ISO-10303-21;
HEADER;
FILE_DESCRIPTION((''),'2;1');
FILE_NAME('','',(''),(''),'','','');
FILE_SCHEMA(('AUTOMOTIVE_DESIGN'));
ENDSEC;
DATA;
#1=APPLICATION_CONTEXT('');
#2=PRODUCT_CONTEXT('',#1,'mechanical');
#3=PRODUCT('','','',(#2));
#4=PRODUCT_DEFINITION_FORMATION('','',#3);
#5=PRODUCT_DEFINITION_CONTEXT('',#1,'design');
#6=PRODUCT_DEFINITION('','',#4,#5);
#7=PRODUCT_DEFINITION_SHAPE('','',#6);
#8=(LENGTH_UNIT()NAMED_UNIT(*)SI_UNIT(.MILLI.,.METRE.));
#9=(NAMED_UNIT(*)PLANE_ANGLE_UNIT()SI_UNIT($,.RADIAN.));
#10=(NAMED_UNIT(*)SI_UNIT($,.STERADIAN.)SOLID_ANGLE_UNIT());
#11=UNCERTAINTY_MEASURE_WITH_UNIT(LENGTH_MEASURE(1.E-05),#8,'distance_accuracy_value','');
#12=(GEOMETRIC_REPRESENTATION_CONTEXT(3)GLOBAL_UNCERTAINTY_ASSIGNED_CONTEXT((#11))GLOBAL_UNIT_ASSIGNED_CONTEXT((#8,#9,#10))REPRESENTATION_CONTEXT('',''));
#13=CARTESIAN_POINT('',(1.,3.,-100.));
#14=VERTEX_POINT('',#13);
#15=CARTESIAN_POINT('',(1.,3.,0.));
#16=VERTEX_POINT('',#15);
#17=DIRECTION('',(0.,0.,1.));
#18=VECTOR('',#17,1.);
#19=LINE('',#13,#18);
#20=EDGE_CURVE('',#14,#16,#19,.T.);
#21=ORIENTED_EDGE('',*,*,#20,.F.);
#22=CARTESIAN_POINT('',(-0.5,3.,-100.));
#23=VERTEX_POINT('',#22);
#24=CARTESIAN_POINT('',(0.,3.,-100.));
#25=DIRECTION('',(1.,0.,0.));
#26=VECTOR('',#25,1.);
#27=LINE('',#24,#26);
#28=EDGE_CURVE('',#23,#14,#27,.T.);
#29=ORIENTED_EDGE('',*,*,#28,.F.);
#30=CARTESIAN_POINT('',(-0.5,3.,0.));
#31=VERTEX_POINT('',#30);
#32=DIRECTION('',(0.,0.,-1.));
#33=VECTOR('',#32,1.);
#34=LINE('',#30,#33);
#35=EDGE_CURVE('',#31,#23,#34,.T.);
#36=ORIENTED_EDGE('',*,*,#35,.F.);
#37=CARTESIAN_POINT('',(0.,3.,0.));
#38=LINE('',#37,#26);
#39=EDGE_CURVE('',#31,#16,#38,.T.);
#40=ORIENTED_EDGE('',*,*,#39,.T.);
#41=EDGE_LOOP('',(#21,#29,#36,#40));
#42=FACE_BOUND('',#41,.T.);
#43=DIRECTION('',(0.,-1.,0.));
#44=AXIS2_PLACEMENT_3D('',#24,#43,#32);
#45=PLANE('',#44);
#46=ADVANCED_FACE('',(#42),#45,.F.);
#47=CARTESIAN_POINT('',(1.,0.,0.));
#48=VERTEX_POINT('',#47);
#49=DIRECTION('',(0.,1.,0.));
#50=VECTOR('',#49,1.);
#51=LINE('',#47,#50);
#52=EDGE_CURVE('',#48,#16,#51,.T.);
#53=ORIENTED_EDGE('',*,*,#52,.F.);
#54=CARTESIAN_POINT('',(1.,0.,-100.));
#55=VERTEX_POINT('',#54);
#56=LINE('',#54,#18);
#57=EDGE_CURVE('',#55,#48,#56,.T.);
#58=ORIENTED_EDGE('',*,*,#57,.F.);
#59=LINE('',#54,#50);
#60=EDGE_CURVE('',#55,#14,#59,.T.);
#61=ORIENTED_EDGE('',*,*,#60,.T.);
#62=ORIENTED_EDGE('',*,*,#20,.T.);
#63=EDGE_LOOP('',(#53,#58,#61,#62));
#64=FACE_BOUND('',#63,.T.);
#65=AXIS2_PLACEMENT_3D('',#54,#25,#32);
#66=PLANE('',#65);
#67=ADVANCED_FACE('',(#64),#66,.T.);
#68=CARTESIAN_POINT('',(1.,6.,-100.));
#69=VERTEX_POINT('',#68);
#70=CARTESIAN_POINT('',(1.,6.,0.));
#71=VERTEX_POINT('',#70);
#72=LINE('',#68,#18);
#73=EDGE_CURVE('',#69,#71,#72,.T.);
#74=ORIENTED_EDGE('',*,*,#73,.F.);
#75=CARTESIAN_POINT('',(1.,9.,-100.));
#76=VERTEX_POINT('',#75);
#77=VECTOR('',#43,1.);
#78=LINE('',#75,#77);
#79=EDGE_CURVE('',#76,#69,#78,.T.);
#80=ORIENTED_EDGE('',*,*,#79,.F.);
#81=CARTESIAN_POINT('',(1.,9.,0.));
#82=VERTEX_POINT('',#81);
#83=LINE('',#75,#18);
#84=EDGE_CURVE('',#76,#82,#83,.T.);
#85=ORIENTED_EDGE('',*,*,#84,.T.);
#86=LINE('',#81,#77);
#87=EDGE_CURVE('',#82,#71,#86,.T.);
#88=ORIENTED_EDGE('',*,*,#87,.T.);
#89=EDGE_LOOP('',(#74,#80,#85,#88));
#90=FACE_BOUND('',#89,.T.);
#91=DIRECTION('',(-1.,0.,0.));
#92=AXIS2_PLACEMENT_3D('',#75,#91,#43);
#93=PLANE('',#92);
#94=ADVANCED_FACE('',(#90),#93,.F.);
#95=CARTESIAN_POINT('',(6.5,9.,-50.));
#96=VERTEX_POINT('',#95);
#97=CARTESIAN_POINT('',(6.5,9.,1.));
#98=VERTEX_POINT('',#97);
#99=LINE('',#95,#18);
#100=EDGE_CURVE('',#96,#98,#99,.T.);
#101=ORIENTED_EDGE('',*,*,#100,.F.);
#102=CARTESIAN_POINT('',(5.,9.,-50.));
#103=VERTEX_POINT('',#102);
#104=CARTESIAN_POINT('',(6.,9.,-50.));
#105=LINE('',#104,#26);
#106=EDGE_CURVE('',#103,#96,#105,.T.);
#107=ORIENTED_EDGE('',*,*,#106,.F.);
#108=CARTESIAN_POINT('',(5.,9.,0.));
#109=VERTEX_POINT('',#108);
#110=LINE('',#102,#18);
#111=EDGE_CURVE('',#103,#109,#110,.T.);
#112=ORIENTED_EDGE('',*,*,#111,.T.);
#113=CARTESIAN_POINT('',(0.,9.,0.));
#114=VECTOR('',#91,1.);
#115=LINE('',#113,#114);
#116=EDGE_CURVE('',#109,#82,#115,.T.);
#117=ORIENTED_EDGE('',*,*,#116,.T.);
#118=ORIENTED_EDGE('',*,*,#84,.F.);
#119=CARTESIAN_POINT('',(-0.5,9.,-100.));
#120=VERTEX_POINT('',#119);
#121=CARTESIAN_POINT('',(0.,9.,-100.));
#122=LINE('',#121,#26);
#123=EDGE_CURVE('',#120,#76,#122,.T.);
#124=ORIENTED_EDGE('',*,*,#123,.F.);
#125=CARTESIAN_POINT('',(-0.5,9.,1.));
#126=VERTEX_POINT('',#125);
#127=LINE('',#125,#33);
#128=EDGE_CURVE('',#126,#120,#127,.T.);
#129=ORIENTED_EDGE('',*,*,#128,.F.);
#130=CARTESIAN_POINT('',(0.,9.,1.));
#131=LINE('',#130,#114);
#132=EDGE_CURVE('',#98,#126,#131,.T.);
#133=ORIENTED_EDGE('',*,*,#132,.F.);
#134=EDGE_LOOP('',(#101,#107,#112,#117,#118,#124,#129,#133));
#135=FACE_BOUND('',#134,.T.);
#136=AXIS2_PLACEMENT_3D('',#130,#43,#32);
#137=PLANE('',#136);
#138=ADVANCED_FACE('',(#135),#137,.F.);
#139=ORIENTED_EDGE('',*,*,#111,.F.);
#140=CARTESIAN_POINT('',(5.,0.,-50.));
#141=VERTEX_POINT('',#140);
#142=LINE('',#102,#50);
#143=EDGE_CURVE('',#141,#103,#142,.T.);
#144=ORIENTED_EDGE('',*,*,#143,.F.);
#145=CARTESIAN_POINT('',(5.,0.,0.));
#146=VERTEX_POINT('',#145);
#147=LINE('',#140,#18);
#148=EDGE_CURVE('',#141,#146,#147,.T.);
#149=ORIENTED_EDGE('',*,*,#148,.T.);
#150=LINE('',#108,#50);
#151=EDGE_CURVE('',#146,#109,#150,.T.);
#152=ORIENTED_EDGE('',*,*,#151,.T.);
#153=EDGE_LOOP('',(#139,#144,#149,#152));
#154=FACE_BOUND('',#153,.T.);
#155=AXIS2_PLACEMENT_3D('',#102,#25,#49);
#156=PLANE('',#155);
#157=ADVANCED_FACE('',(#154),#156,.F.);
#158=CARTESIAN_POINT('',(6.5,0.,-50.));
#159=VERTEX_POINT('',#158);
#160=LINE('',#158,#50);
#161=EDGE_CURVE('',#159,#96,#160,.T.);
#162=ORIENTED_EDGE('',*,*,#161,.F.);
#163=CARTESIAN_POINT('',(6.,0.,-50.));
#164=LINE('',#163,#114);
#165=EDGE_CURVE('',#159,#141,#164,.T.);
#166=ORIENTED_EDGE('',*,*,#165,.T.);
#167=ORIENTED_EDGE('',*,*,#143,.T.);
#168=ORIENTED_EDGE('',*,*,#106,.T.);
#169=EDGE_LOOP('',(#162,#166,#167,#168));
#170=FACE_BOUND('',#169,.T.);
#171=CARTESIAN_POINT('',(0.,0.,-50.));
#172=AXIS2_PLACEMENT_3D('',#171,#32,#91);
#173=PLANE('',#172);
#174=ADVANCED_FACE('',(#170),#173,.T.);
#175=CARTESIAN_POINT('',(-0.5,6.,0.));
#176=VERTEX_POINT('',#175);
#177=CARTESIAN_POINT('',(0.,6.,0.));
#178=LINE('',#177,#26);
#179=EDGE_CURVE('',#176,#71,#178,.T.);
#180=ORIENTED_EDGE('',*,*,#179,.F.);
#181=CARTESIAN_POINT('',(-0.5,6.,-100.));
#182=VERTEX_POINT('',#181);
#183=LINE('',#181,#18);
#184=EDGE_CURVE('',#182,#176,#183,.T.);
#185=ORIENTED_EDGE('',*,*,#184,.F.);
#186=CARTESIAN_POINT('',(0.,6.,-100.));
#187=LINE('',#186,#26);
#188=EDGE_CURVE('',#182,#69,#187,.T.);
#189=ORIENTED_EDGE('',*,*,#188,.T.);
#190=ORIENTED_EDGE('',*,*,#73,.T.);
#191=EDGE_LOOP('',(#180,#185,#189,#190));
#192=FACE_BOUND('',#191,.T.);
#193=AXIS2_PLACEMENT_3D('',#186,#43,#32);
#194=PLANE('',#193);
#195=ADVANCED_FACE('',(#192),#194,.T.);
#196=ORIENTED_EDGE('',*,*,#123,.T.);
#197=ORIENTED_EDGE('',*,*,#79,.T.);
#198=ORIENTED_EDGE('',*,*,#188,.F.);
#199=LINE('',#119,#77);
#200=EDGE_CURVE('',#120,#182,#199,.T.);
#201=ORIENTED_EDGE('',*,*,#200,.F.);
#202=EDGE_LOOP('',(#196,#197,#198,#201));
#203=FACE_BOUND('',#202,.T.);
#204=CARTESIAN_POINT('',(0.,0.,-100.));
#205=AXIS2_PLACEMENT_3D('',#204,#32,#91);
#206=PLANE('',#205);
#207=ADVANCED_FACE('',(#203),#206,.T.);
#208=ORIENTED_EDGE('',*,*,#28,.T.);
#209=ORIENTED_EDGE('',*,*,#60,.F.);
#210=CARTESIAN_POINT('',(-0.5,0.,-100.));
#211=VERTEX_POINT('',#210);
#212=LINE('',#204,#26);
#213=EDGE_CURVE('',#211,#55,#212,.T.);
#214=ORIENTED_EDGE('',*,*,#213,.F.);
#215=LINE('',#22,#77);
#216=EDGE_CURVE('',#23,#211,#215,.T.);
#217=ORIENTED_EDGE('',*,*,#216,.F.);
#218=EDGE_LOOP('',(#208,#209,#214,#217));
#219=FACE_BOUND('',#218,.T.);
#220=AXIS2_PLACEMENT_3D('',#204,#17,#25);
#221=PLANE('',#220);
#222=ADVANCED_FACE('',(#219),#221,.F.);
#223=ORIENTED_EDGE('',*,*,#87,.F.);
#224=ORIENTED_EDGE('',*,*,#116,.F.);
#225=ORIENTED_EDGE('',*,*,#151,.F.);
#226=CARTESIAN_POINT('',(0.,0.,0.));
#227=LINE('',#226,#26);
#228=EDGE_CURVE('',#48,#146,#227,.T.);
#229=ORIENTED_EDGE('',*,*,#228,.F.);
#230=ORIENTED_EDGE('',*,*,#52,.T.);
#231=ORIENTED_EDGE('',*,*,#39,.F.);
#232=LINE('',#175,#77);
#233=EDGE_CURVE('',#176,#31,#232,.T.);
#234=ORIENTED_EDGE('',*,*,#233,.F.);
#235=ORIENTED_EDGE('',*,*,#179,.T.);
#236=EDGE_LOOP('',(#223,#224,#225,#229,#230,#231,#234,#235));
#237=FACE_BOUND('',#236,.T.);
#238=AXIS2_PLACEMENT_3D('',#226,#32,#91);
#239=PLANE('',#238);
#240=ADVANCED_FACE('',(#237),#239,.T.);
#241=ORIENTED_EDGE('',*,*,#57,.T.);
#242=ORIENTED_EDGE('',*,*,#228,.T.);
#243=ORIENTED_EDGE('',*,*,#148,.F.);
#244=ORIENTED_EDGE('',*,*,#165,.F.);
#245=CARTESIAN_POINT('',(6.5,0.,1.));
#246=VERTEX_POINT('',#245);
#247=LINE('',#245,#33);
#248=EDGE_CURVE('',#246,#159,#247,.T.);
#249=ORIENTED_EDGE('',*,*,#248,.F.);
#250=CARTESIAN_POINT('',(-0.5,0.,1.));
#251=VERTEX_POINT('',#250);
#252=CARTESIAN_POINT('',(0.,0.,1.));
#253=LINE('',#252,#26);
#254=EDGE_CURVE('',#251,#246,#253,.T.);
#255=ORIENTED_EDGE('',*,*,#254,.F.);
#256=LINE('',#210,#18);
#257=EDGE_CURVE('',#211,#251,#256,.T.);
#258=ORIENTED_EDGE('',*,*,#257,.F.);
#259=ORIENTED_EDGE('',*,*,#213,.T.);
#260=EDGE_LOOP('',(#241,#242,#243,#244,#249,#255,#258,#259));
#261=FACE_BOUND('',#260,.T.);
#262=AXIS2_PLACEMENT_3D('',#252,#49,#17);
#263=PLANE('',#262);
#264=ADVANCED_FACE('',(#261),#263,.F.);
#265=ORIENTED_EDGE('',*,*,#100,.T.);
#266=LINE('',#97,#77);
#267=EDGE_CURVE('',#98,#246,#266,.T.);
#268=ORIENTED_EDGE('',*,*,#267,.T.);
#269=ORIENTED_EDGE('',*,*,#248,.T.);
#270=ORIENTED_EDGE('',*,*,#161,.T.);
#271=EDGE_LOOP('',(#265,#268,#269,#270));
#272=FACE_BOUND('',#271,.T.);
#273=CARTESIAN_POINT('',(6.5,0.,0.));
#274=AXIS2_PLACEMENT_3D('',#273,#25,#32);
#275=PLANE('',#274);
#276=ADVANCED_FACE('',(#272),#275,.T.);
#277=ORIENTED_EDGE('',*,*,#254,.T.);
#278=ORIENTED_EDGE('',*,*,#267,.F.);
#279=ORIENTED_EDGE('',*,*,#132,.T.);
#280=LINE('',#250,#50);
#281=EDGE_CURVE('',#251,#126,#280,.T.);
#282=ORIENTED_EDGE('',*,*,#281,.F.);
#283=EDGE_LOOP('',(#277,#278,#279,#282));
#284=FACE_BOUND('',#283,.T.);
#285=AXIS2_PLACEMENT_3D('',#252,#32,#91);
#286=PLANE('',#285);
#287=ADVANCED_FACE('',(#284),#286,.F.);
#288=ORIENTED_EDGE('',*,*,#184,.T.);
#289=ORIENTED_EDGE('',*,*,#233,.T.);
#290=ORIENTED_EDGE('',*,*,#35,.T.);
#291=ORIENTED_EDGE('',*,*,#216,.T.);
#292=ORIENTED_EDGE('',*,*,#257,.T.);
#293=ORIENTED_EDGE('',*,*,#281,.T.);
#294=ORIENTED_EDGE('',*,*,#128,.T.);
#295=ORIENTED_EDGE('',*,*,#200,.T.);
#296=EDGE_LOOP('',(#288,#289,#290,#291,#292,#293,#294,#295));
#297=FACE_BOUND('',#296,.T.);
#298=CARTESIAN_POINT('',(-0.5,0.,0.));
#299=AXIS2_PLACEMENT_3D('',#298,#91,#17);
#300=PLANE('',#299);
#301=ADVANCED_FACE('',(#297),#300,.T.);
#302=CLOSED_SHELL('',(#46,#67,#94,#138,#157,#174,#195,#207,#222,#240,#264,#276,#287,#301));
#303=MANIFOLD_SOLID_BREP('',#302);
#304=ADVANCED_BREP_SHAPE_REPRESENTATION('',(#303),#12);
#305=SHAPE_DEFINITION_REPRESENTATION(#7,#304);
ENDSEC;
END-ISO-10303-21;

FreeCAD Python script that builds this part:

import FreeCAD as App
import Part
import Sketcher
from FreeCAD import Vector
Q = App.Units.Quantity

doc = App.newDocument("Part")
params = doc.addObject("Spreadsheet::Sheet", "Params")
for row, (alias, value) in enumerate([
    ("sketch1_width", "6 mm"),
    ("sketch1_height", "9 mm"),
    ("pad1_length", "1 mm"),
    ("sketch2_width", "1 mm"),
    ("sketch2_height", "3 mm"),
    ("pad2_length", "100 mm"),
    ("sketch3_width", "1 mm"),
    ("sketch3_height", "9 mm"),
    ("pad3_length", "50 mm"),
    ("sketch4_width", "9 mm"),
    ("sketch4_height", "51 mm"),
    ("pad4_length", "0.5 mm"),
    ("sketch5_width", "3 mm"),
    ("sketch5_height", "101 mm"),
    ("sketch5_height2", "100 mm"),
    ("pad5_length", "0.5 mm"),
], start=1):
    params.set(f"A{row}", alias)
    params.set(f"B{row}", "=" + value)
    params.setAlias(f"B{row}", alias)

body = doc.addObject("PartDesign::Body", "Body")

sketch1 = doc.addObject("Sketcher::SketchObject", "Sketch")
body.addObject(sketch1)
sketch1.AttachmentSupport = (doc.XY_Plane, [""])
sketch1.MapMode = "FlatFace"
sketch1.addGeometry([
    Part.LineSegment(Vector(0, 9, 0), Vector(0, 0, 0)),
    Part.LineSegment(Vector(0, 0, 0), Vector(6, 0, 0)),
    Part.LineSegment(Vector(6, 0, 0), Vector(6, 9, 0)),
    Part.LineSegment(Vector(6, 9, 0), Vector(0, 9, 0)),
], False)
sketch1.addConstraint([
    Sketcher.Constraint("Coincident", 0, 2, 1, 1),
    Sketcher.Constraint("Coincident", 1, 2, 2, 1),
    Sketcher.Constraint("Coincident", 2, 2, 3, 1),
    Sketcher.Constraint("Coincident", 3, 2, 0, 1),
    Sketcher.Constraint("Vertical", 0),
    Sketcher.Constraint("Horizontal", 1),
    Sketcher.Constraint("Vertical", 2),
    Sketcher.Constraint("Horizontal", 3),
    Sketcher.Constraint("Coincident", 0, 2, -1, 1),
    Sketcher.Constraint("DistanceX", 1, 1, 1, 2, Q("6 mm")),
    Sketcher.Constraint("DistanceY", 0, 2, 0, 1, Q("9 mm")),
])
sketch1.setExpression("Constraints[9]", "Params.sketch1_width")
sketch1.setExpression("Constraints[10]", "Params.sketch1_height")
pad1 = doc.addObject("PartDesign::Pad", "Pad")
body.addObject(pad1)
pad1.Profile = sketch1
pad1.setExpression("Length", "Params.pad1_length")

sketch2 = doc.addObject("Sketcher::SketchObject", "Sketch001")
body.addObject(sketch2)
sketch2.AttachmentSupport = (doc.XY_Plane, [""])
sketch2.MapMode = "FlatFace"
sketch2.addGeometry([
    Part.LineSegment(Vector(1, 3, 0), Vector(1, 0, 0)),
    Part.LineSegment(Vector(1, 0, 0), Vector(0, 0, 0)),
    Part.LineSegment(Vector(0, 0, 0), Vector(0, 3, 0)),
    Part.LineSegment(Vector(0, 3, 0), Vector(1, 3, 0)),
    Part.LineSegment(Vector(1, 9, 0), Vector(1, 6, 0)),
    Part.LineSegment(Vector(1, 6, 0), Vector(0, 6, 0)),
    Part.LineSegment(Vector(0, 6, 0), Vector(0, 9, 0)),
    Part.LineSegment(Vector(0, 9, 0), Vector(1, 9, 0)),
], False)
sketch2.addConstraint([
    Sketcher.Constraint("Coincident", 0, 2, 1, 1),
    Sketcher.Constraint("Coincident", 1, 2, 2, 1),
    Sketcher.Constraint("Coincident", 2, 2, 3, 1),
    Sketcher.Constraint("Coincident", 3, 2, 0, 1),
    Sketcher.Constraint("Coincident", 4, 2, 5, 1),
    Sketcher.Constraint("Coincident", 5, 2, 6, 1),
    Sketcher.Constraint("Coincident", 6, 2, 7, 1),
    Sketcher.Constraint("Coincident", 7, 2, 4, 1),
    Sketcher.Constraint("Vertical", 0),
    Sketcher.Constraint("Horizontal", 1),
    Sketcher.Constraint("Vertical", 2),
    Sketcher.Constraint("Horizontal", 3),
    Sketcher.Constraint("Vertical", 4),
    Sketcher.Constraint("Horizontal", 5),
    Sketcher.Constraint("Vertical", 6),
    Sketcher.Constraint("Horizontal", 7),
    Sketcher.Constraint("Coincident", 1, 2, -1, 1),
    Sketcher.Constraint("PointOnObject", 5, 2, -2),
    Sketcher.Constraint("Vertical", 3, 2, 4, 2),
    Sketcher.Constraint("Equal", 2, 4),
    Sketcher.Constraint("DistanceX", 1, 2, 1, 1, Q("1 mm")),
    Sketcher.Constraint("DistanceY", 0, 2, 0, 1, Q("3 mm")),
    Sketcher.Constraint("DistanceY", -1, 1, 4, 2, Q("6 mm")),
])
sketch2.setExpression("Constraints[20]", "Params.sketch2_width")
sketch2.setExpression("Constraints[21]", "Params.sketch2_height")
pad2 = doc.addObject("PartDesign::Pad", "Pad001")
body.addObject(pad2)
pad2.Profile = sketch2
pad2.setExpression("Length", "Params.pad2_length")
pad2.Reversed = True

sketch3 = doc.addObject("Sketcher::SketchObject", "Sketch002")
body.addObject(sketch3)
sketch3.AttachmentSupport = (doc.XY_Plane, [""])
sketch3.MapMode = "FlatFace"
sketch3.addGeometry([
    Part.LineSegment(Vector(6, 9, 0), Vector(6, 0, 0)),
    Part.LineSegment(Vector(6, 0, 0), Vector(5, 0, 0)),
    Part.LineSegment(Vector(5, 0, 0), Vector(5, 9, 0)),
    Part.LineSegment(Vector(5, 9, 0), Vector(6, 9, 0)),
], False)
sketch3.addConstraint([
    Sketcher.Constraint("Coincident", 0, 2, 1, 1),
    Sketcher.Constraint("Coincident", 1, 2, 2, 1),
    Sketcher.Constraint("Coincident", 2, 2, 3, 1),
    Sketcher.Constraint("Coincident", 3, 2, 0, 1),
    Sketcher.Constraint("Vertical", 0),
    Sketcher.Constraint("Horizontal", 1),
    Sketcher.Constraint("Vertical", 2),
    Sketcher.Constraint("Horizontal", 3),
    Sketcher.Constraint("PointOnObject", 0, 2, -1),
    Sketcher.Constraint("DistanceX", 1, 2, 1, 1, Q("1 mm")),
    Sketcher.Constraint("DistanceY", 0, 2, 0, 1, Q("9 mm")),
    Sketcher.Constraint("DistanceX", -1, 1, 0, 2, Q("6 mm")),
])
sketch3.setExpression("Constraints[9]", "Params.sketch3_width")
sketch3.setExpression("Constraints[10]", "Params.sketch3_height")
pad3 = doc.addObject("PartDesign::Pad", "Pad002")
body.addObject(pad3)
pad3.Profile = sketch3
pad3.setExpression("Length", "Params.pad3_length")
pad3.Reversed = True

sketch4 = doc.addObject("Sketcher::SketchObject", "Sketch003")
body.addObject(sketch4)
sketch4.AttachmentSupport = (doc.YZ_Plane, [""])
sketch4.MapMode = "FlatFace"
sketch4.AttachmentOffset = App.Placement(Vector(0, 0, 6), App.Rotation())
sketch4.addGeometry([
    Part.LineSegment(Vector(9, 1, 0), Vector(0, 1, 0)),
    Part.LineSegment(Vector(0, 1, 0), Vector(0, -50, 0)),
    Part.LineSegment(Vector(0, -50, 0), Vector(9, -50, 0)),
    Part.LineSegment(Vector(9, -50, 0), Vector(9, 1, 0)),
], False)
sketch4.addConstraint([
    Sketcher.Constraint("Coincident", 0, 2, 1, 1),
    Sketcher.Constraint("Coincident", 1, 2, 2, 1),
    Sketcher.Constraint("Coincident", 2, 2, 3, 1),
    Sketcher.Constraint("Coincident", 3, 2, 0, 1),
    Sketcher.Constraint("Horizontal", 0),
    Sketcher.Constraint("Vertical", 1),
    Sketcher.Constraint("Horizontal", 2),
    Sketcher.Constraint("Vertical", 3),
    Sketcher.Constraint("PointOnObject", 0, 2, -2),
    Sketcher.Constraint("DistanceX", 0, 2, 0, 1, Q("9 mm")),
    Sketcher.Constraint("DistanceY", 1, 2, 1, 1, Q("51 mm")),
    Sketcher.Constraint("DistanceY", -1, 1, 0, 2, Q("1 mm")),
])
sketch4.setExpression("Constraints[9]", "Params.sketch4_width")
sketch4.setExpression("Constraints[10]", "Params.sketch4_height")
pad4 = doc.addObject("PartDesign::Pad", "Pad003")
body.addObject(pad4)
pad4.Profile = sketch4
pad4.setExpression("Length", "Params.pad4_length")

sketch5 = doc.addObject("Sketcher::SketchObject", "Sketch004")
body.addObject(sketch5)
sketch5.AttachmentSupport = (doc.YZ_Plane, [""])
sketch5.MapMode = "FlatFace"
sketch5.addGeometry([
    Part.LineSegment(Vector(9, 1, 0), Vector(9, -100, 0)),
    Part.LineSegment(Vector(9, -100, 0), Vector(6, -100, 0)),
    Part.LineSegment(Vector(6, -100, 0), Vector(6, 0, 0)),
    Part.LineSegment(Vector(6, 0, 0), Vector(3, 0, 0)),
    Part.LineSegment(Vector(3, 0, 0), Vector(3, -100, 0)),
    Part.LineSegment(Vector(3, -100, 0), Vector(0, -100, 0)),
    Part.LineSegment(Vector(0, -100, 0), Vector(0, 1, 0)),
    Part.LineSegment(Vector(0, 1, 0), Vector(9, 1, 0)),
], False)
sketch5.addConstraint([
    Sketcher.Constraint("Coincident", 0, 2, 1, 1),
    Sketcher.Constraint("Coincident", 1, 2, 2, 1),
    Sketcher.Constraint("Coincident", 2, 2, 3, 1),
    Sketcher.Constraint("Coincident", 3, 2, 4, 1),
    Sketcher.Constraint("Coincident", 4, 2, 5, 1),
    Sketcher.Constraint("Coincident", 5, 2, 6, 1),
    Sketcher.Constraint("Coincident", 6, 2, 7, 1),
    Sketcher.Constraint("Coincident", 7, 2, 0, 1),
    Sketcher.Constraint("Vertical", 0),
    Sketcher.Constraint("Horizontal", 1),
    Sketcher.Constraint("Vertical", 2),
    Sketcher.Constraint("Horizontal", 3),
    Sketcher.Constraint("Vertical", 4),
    Sketcher.Constraint("Horizontal", 5),
    Sketcher.Constraint("Vertical", 6),
    Sketcher.Constraint("Horizontal", 7),
    Sketcher.Constraint("PointOnObject", 2, 2, -1),
    Sketcher.Constraint("PointOnObject", 5, 2, -2),
    Sketcher.Constraint("Horizontal", 1, 2, 4, 2),
    Sketcher.Constraint("Equal", 1, 3),
    Sketcher.Constraint("Equal", 3, 5),
    Sketcher.Constraint("DistanceX", 1, 2, 1, 1, Q("3 mm")),
    Sketcher.Constraint("DistanceY", 0, 2, 0, 1, Q("101 mm")),
    Sketcher.Constraint("DistanceY", 2, 1, 2, 2, Q("100 mm")),
])
sketch5.setExpression("Constraints[21]", "Params.sketch5_width")
sketch5.setExpression("Constraints[22]", "Params.sketch5_height")
sketch5.setExpression("Constraints[23]", "Params.sketch5_height2")
pad5 = doc.addObject("PartDesign::Pad", "Pad004")
body.addObject(pad5)
pad5.Profile = sketch5
pad5.setExpression("Length", "Params.pad5_length")
pad5.Reversed = True

doc.recompute()
